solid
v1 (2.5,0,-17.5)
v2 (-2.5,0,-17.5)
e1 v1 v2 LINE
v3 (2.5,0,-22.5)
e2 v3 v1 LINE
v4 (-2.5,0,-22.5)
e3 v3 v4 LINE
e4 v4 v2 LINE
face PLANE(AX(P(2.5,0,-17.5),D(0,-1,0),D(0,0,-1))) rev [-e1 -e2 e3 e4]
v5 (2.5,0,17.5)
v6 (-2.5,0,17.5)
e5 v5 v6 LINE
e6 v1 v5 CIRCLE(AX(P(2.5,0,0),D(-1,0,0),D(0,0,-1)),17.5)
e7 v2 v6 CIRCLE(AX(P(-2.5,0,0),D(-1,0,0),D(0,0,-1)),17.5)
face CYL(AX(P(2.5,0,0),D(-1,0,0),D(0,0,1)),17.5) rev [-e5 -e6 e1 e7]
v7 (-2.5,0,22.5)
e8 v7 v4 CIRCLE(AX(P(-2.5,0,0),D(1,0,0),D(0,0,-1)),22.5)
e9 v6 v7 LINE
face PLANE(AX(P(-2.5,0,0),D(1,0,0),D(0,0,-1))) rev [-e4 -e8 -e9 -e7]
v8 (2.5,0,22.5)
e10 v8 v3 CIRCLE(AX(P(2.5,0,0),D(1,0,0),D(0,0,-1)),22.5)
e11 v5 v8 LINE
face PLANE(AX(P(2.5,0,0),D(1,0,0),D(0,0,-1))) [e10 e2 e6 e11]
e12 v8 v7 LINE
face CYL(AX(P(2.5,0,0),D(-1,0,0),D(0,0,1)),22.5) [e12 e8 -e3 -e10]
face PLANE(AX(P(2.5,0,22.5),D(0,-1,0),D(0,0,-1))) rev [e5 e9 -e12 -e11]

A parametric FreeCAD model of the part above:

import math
import FreeCAD as App
import Part
import Sketcher
Q = App.Units.Quantity

doc = App.newDocument("Part")
params = doc.addObject("Spreadsheet::Sheet", "Params")
for row, (alias, value) in enumerate([
    ("sketch1_radius", "22.5 mm"),
    ("sketch1_radius2", "17.5 mm"),
    ("pad1_length", "5 mm"),
], start=1):
    params.set(f"A{row}", alias)
    params.set(f"B{row}", "=" + value)
    params.setAlias(f"B{row}", alias)

body = doc.addObject("PartDesign::Body", "Body")

# Sketch on YZ plane
sketch1 = body.newObject("Sketcher::SketchObject", "Sketch")
sketch1.AttachmentSupport = (doc.getObject("YZ_Plane"), [""])
sketch1.MapMode = "FlatFace"
sketch1.addGeometry(Part.LineSegment(App.Vector(0, 18, 0), App.Vector(0, 22, 0)), False)
sketch1.addGeometry(Part.ArcOfCircle(Part.Circle(App.Vector(0, 0, 0), App.Vector(0, 0, 1), 22), math.radians(90), math.radians(270)), False)
sketch1.addGeometry(Part.LineSegment(App.Vector(0, -22, 0), App.Vector(0, -18, 0)), False)
sketch1.addGeometry(Part.ArcOfCircle(Part.Circle(App.Vector(0, 0, 0), App.Vector(0, 0, 1), 18), math.radians(90), math.radians(270)), False)
sketch1.addConstraint(Sketcher.Constraint("Coincident", 0, 2, 1, 1))
sketch1.addConstraint(Sketcher.Constraint("Coincident", 1, 2, 2, 1))
sketch1.addConstraint(Sketcher.Constraint("Coincident", 2, 2, 3, 2))
sketch1.addConstraint(Sketcher.Constraint("Coincident", 3, 1, 0, 1))
sketch1.addConstraint(Sketcher.Constraint("Vertical", 0))
sketch1.addConstraint(Sketcher.Constraint("Vertical", 2))
sketch1.addConstraint(Sketcher.Constraint("Coincident", 1, 3, -1, 1))
sketch1.addConstraint(Sketcher.Constraint("Coincident", 3, 3, -1, 1))
sketch1.addConstraint(Sketcher.Constraint("PointOnObject", 0, 2, -2))
sketch1.addConstraint(Sketcher.Constraint("PointOnObject", 1, 2, -2))
sketch1.addConstraint(Sketcher.Constraint("Radius", 1, Q("22.5 mm")))
sketch1.addConstraint(Sketcher.Constraint("Radius", 3, Q("17.5 mm")))
sketch1.setExpression("Constraints[10]", "Params.sketch1_radius")
sketch1.setExpression("Constraints[11]", "Params.sketch1_radius2")
pad1 = body.newObject("PartDesign::Pad", "Pad")
pad1.Profile = sketch1
pad1.setExpression("Length", "Params.pad1_length")
pad1.Midplane = True

doc.recompute()
